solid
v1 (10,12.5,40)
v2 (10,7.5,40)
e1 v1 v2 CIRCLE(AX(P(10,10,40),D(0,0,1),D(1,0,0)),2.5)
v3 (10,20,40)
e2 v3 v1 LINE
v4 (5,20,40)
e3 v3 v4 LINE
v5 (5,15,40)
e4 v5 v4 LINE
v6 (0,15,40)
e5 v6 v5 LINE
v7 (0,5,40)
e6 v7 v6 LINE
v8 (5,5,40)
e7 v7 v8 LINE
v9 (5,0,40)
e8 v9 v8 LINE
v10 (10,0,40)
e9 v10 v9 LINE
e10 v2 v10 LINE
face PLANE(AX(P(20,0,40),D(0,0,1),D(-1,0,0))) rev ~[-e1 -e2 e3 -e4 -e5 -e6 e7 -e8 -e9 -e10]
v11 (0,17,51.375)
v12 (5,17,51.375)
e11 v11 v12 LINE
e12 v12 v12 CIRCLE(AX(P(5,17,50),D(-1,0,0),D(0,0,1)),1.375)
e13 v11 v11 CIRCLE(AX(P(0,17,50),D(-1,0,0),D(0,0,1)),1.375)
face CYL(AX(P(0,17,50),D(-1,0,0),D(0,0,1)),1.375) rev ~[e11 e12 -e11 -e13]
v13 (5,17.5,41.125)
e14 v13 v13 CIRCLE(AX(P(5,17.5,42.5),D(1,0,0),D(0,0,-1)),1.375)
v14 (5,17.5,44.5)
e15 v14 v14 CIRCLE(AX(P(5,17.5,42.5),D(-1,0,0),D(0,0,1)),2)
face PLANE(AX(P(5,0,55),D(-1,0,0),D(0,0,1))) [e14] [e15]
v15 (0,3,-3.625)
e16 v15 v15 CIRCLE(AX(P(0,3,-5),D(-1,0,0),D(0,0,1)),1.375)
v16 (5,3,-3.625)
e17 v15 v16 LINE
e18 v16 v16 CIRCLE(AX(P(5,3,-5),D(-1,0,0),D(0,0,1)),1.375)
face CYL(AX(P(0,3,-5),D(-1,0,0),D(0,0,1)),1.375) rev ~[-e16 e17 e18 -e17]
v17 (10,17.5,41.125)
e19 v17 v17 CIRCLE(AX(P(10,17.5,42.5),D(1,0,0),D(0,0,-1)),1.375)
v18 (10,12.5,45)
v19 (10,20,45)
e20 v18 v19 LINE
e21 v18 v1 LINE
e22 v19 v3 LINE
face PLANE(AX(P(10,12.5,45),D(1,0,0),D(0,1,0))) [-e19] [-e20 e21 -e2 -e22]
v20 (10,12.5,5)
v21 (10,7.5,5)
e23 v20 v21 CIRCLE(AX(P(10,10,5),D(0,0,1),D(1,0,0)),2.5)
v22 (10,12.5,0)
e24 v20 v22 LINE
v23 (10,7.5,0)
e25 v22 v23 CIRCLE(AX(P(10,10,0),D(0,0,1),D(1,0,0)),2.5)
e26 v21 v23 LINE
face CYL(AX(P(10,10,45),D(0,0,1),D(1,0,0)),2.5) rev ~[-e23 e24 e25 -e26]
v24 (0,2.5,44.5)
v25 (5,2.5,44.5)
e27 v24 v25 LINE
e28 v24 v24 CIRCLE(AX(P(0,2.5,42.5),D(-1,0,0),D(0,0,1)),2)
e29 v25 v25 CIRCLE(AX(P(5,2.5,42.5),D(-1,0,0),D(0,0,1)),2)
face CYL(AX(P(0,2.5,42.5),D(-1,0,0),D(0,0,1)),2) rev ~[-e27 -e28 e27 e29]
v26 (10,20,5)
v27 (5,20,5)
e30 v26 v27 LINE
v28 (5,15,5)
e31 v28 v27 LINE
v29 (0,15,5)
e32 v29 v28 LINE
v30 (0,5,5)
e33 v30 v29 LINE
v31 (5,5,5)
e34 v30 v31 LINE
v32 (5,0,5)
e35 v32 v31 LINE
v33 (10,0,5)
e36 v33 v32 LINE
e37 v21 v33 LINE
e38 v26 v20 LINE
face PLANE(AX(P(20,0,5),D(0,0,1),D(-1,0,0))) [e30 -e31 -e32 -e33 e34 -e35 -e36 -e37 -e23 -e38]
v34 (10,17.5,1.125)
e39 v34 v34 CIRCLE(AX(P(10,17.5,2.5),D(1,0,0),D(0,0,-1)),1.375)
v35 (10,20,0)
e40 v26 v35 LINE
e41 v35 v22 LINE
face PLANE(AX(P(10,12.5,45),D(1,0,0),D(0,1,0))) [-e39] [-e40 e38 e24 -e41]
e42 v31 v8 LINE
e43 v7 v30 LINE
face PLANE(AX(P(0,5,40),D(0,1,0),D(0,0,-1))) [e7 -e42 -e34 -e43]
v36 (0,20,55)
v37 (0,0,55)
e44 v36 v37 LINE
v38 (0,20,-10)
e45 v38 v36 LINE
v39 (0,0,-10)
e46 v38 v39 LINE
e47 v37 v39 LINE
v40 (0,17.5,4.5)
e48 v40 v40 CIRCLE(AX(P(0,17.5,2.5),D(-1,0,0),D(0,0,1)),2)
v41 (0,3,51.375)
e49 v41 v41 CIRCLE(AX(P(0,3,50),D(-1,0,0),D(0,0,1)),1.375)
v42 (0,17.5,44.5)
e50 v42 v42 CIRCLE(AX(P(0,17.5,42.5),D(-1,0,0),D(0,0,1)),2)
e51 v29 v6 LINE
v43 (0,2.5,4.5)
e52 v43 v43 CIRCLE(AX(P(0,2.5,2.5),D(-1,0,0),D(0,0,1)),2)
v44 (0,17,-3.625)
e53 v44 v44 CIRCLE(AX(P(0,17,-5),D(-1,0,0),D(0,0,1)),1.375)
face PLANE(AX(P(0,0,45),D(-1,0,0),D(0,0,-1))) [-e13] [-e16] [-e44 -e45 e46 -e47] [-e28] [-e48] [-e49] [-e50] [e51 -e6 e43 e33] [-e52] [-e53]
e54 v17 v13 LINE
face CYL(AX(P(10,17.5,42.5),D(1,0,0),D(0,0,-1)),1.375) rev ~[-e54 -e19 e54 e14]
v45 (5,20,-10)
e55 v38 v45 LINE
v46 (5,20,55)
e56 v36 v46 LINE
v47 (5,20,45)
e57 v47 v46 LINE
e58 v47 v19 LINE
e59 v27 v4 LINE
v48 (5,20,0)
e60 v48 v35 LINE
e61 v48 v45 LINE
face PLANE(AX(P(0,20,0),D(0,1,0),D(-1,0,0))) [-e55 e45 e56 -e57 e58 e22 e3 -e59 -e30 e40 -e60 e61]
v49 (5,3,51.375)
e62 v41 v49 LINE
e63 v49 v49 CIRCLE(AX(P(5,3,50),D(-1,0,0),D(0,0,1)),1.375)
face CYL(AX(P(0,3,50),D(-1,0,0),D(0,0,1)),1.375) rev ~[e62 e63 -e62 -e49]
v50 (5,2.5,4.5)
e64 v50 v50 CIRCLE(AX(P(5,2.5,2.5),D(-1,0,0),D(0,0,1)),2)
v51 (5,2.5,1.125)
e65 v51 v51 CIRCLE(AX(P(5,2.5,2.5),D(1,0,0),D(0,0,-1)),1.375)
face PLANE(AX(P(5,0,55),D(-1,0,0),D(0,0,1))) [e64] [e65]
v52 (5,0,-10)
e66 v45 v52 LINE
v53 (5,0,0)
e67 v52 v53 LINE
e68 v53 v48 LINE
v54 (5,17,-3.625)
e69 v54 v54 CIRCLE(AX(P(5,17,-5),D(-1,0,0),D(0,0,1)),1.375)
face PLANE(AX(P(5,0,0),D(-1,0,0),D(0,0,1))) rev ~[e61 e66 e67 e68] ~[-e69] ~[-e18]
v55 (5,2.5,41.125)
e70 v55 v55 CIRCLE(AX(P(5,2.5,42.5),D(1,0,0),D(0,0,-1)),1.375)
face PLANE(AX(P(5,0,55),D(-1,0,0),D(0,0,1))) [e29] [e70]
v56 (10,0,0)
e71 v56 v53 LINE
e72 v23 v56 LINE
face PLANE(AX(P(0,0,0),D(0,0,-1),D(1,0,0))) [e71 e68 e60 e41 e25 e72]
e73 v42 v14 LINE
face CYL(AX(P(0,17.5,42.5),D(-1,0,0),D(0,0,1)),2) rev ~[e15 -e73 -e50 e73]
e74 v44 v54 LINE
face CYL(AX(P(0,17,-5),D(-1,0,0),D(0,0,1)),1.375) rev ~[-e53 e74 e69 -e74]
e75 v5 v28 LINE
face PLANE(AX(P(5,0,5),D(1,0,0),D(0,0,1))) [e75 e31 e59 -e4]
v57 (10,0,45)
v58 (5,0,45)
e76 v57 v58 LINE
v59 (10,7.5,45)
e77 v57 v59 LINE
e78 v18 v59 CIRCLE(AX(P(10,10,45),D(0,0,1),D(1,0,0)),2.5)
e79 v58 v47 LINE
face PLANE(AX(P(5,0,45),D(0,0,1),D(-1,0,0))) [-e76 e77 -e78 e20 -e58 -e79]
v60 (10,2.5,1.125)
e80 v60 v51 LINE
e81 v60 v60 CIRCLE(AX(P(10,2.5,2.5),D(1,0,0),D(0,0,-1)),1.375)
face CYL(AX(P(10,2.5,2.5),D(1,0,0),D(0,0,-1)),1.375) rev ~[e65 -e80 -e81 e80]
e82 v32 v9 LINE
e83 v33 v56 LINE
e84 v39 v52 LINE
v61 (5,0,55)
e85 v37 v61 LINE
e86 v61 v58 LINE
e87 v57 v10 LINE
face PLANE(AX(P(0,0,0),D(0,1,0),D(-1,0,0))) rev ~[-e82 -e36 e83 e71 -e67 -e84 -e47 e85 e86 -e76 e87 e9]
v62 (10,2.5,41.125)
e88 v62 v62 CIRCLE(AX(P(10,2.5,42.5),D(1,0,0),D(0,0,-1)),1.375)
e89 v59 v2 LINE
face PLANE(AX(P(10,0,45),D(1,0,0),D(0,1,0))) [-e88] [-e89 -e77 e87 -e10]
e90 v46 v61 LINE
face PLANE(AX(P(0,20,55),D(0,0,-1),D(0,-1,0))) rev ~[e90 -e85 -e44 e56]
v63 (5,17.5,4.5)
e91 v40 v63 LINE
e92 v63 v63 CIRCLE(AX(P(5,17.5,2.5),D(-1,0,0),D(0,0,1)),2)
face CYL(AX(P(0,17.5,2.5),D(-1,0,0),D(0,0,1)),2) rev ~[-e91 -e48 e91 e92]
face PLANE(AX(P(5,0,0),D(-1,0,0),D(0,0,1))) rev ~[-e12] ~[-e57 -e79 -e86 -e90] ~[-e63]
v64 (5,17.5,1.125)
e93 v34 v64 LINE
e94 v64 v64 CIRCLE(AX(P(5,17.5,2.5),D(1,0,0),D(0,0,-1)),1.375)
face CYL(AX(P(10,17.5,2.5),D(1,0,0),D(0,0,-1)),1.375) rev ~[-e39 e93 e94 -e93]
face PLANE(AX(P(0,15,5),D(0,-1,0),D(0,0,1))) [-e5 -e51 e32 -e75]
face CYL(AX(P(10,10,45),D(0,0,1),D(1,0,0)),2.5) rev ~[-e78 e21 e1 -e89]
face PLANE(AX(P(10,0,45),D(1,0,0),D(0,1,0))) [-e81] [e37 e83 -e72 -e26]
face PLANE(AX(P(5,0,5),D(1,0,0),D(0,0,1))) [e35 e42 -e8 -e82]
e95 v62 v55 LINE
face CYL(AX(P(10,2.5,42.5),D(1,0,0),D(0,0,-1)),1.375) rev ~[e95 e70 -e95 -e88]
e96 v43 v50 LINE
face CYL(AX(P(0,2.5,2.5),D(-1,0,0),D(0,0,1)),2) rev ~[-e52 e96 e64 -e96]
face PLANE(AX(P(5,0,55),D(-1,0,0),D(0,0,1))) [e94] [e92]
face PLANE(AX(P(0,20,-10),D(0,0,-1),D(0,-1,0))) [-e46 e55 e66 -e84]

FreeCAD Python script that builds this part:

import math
import FreeCAD as App
import Part
import Sketcher
from FreeCAD import Vector
Q = App.Units.Quantity

doc = App.newDocument("Part")
body = doc.addObject("PartDesign::Body", "Body")

# Sketch on XZ plane
sketch1 = doc.addObject("Sketcher::SketchObject", "Sketch")
body.addObject(sketch1)
sketch1.AttachmentSupport = (doc.XZ_Plane, [""])
sketch1.MapMode = "FlatFace"
sketch1.addGeometry([
    Part.LineSegment(Vector(0, 0, 0), Vector(0, 45, 0)),  # 0
    Part.LineSegment(Vector(0, 45, 0), Vector(20, 45, 0)),  # 1
    Part.LineSegment(Vector(20, 45, 0), Vector(20, 40, 0)),  # 2
    Part.LineSegment(Vector(20, 40, 0), Vector(5, 40, 0)),  # 3
    Part.LineSegment(Vector(5, 40, 0), Vector(5, 5, 0)),  # 4
    Part.LineSegment(Vector(5, 5, 0), Vector(20, 5, 0)),  # 5
    Part.LineSegment(Vector(20, 5, 0), Vector(20, 0, 0)),  # 6
    Part.LineSegment(Vector(20, 0, 0), Vector(0, 0, 0)),  # 7
], False)
sketch1.addConstraint([
    Sketcher.Constraint("Coincident", 0, 2, 1, 1),
    Sketcher.Constraint("Coincident", 1, 2, 2, 1),
    Sketcher.Constraint("Coincident", 2, 2, 3, 1),
    Sketcher.Constraint("Coincident", 3, 2, 4, 1),
    Sketcher.Constraint("Coincident", 4, 2, 5, 1),
    Sketcher.Constraint("Coincident", 5, 2, 6, 1),
    Sketcher.Constraint("Coincident", 6, 2, 7, 1),
    Sketcher.Constraint("Coincident", 7, 2, 0, 1),
    Sketcher.Constraint("Vertical", 0),
    Sketcher.Constraint("Horizontal", 1),
    Sketcher.Constraint("Vertical", 2),
    Sketcher.Constraint("Horizontal", 3),
    Sketcher.Constraint("Vertical", 4),
    Sketcher.Constraint("Horizontal", 5),
    Sketcher.Constraint("Vertical", 6),
    Sketcher.Constraint("Horizontal", 7),
    Sketcher.Constraint("Coincident", 7, 2, -1, 1),
    Sketcher.Constraint("Vertical", 2, 2, 5, 2),
    Sketcher.Constraint("Equal", 2, 6),
    Sketcher.Constraint("DistanceX", 3, 2, 3, 1, Q("15 mm")),
    Sketcher.Constraint("DistanceY", 2, 2, 2, 1, Q("5 mm")),
    Sketcher.Constraint("DistanceY", 4, 2, 4, 1, Q("35 mm")),
    Sketcher.Constraint("DistanceX", -1, 1, 3, 2, Q("5 mm")),
])
pad1 = doc.addObject("PartDesign::Pad", "Pad")
body.addObject(pad1)
pad1.Profile = sketch1
pad1.Length = 20
pad1.Reversed = True

# Sketch on XY plane
sketch2 = doc.addObject("Sketcher::SketchObject", "Sketch001")
body.addObject(sketch2)
sketch2.AttachmentSupport = (doc.XY_Plane, [""])
sketch2.MapMode = "FlatFace"
sketch2.AttachmentOffset = App.Placement(Vector(0, 0, 45), App.Rotation())
sketch2.addGeometry([
    Part.LineSegment(Vector(10, 7.5, 0), Vector(10, 0, 0)),  # 0
    Part.LineSegment(Vector(10, 0, 0), Vector(20, 0, 0)),  # 1
    Part.LineSegment(Vector(20, 0, 0), Vector(20, 20, 0)),  # 2
    Part.LineSegment(Vector(20, 20, 0), Vector(10, 20, 0)),  # 3
    Part.LineSegment(Vector(10, 20, 0), Vector(10, 12.5, 0)),  # 4
    Part.ArcOfCircle(Part.Circle(Vector(10, 10, 0), Vector(0, 0, 1), 2.5), math.radians(90), math.radians(270)),  # 5
], False)
sketch2.addConstraint([
    Sketcher.Constraint("Coincident", 0, 2, 1, 1),
    Sketcher.Constraint("Coincident", 1, 2, 2, 1),
    Sketcher.Constraint("Coincident", 2, 2, 3, 1),
    Sketcher.Constraint("Coincident", 3, 2, 4, 1),
    Sketcher.Constraint("Coincident", 4, 2, 5, 1),
    Sketcher.Constraint("Coincident", 5, 2, 0, 1),
    Sketcher.Constraint("Vertical", 0),
    Sketcher.Constraint("Horizontal", 1),
    Sketcher.Constraint("Vertical", 2),
    Sketcher.Constraint("Horizontal", 3),
    Sketcher.Constraint("Vertical", 4),
    Sketcher.Constraint("PointOnObject", 0, 2, -1),
    Sketcher.Constraint("Vertical", 5, 3, 0, 2),
    Sketcher.Constraint("Vertical", 0, 2, 3, 2),
    Sketcher.Constraint("Equal", 0, 4),
    Sketcher.Constraint("Radius", 5, Q("2.5 mm")),
    Sketcher.Constraint("DistanceX", 1, 1, 1, 2, Q("10 mm")),
    Sketcher.Constraint("DistanceX", -1, 1, 5, 3, Q("10 mm")),
    Sketcher.Constraint("DistanceY", -1, 1, 5, 3, Q("10 mm")),
])
pocket1 = doc.addObject("PartDesign::Pocket", "Pocket")
body.addObject(pocket1)
pocket1.Profile = sketch2
pocket1.Length = 200

# Sketch on YZ plane
sketch3 = doc.addObject("Sketcher::SketchObject", "Sketch002")
body.addObject(sketch3)
sketch3.AttachmentSupport = (doc.YZ_Plane, [""])
sketch3.MapMode = "FlatFace"
sketch3.addGeometry([
    Part.LineSegment(Vector(15, 5, 0), Vector(5, 5, 0)),
    Part.LineSegment(Vector(5, 5, 0), Vector(5, 40, 0)),
    Part.LineSegment(Vector(5, 40, 0), Vector(15, 40, 0)),
    Part.LineSegment(Vector(15, 40, 0), Vector(15, 5, 0)),
], False)
sketch3.addConstraint([
    Sketcher.Constraint("Coincident", 0, 2, 1, 1),
    Sketcher.Constraint("Coincident", 1, 2, 2, 1),
    Sketcher.Constraint("Coincident", 2, 2, 3, 1),
    Sketcher.Constraint("Coincident", 3, 2, 0, 1),
    Sketcher.Constraint("Horizontal", 0),
    Sketcher.Constraint("Vertical", 1),
    Sketcher.Constraint("Horizontal", 2),
    Sketcher.Constraint("Vertical", 3),
    Sketcher.Constraint("DistanceX", -1, 1, 0, 2, Q("5 mm")),
    Sketcher.Constraint("DistanceY", -1, 1, 0, 2, Q("5 mm")),
    Sketcher.Constraint("DistanceX", 0, 2, 0, 1, Q("10 mm")),
    Sketcher.Constraint("DistanceY", 1, 1, 1, 2, Q("35 mm")),
])
pocket2 = doc.addObject("PartDesign::Pocket", "Pocket001")
body.addObject(pocket2)
pocket2.Profile = sketch3
pocket2.Length = 20
pocket2.Reversed = True

# Sketch on YZ plane
sketch4 = doc.addObject("Sketcher::SketchObject", "Sketch003")
body.addObject(sketch4)
sketch4.AttachmentSupport = (doc.YZ_Plane, [""])
sketch4.MapMode = "FlatFace"
sketch4.addGeometry([
    Part.LineSegment(Vector(20, 45, 0), Vector(0, 45, 0)),  # 0
    Part.LineSegment(Vector(0, 45, 0), Vector(0, 55, 0)),  # 1
    Part.LineSegment(Vector(0, 55, 0), Vector(20, 55, 0)),  # 2
    Part.LineSegment(Vector(20, 55, 0), Vector(20, 45, 0)),  # 3
    Part.Circle(Vector(3, 50, 0), Vector(0, 0, 1), 1.375),  # 4
    Part.Circle(Vector(17, 50, 0), Vector(0, 0, 1), 1.375),  # 5
    Part.LineSegment(Vector(0, 0, 0), Vector(20, 0, 0)),  # 6
    Part.LineSegment(Vector(20, 0, 0), Vector(20, -10, 0)),  # 7
    Part.LineSegment(Vector(20, -10, 0), Vector(0, -10, 0)),  # 8
    Part.LineSegment(Vector(0, -10, 0), Vector(0, 0, 0)),  # 9
    Part.Circle(Vector(3, -5, 0), Vector(0, 0, 1), 1.375),  # 10
    Part.Circle(Vector(17, -5, 0), Vector(0, 0, 1), 1.375),  # 11
], False)
sketch4.addConstraint([
    Sketcher.Constraint("Coincident", 0, 2, 1, 1),
    Sketcher.Constraint("Coincident", 1, 2, 2, 1),
    Sketcher.Constraint("Coincident", 2, 2, 3, 1),
    Sketcher.Constraint("Coincident", 3, 2, 0, 1),
    Sketcher.Constraint("Coincident", 6, 2, 7, 1),
    Sketcher.Constraint("Coincident", 7, 2, 8, 1),
    Sketcher.Constraint("Coincident", 8, 2, 9, 1),
    Sketcher.Constraint("Coincident", 9, 2, 6, 1),
    Sketcher.Constraint("Horizontal", 0),
    Sketcher.Constraint("Vertical", 1),
    Sketcher.Constraint("Horizontal", 2),
    Sketcher.Constraint("Vertical", 3),
    Sketcher.Constraint("Horizontal", 6),
    Sketcher.Constraint("Vertical", 7),
    Sketcher.Constraint("Horizontal", 8),
    Sketcher.Constraint("Vertical", 9),
    Sketcher.Constraint("Coincident", 9, 2, -1, 1),
    Sketcher.Constraint("Equal", 4, 5),
    Sketcher.Constraint("Equal", 5, 10),
    Sketcher.Constraint("Equal", 10, 11),
    Sketcher.Constraint("PointOnObject", 0, 2, -2),
    Sketcher.Constraint("Horizontal", 4, 3, 5, 3),
    Sketcher.Constraint("Horizontal", 10, 3, 11, 3),
    Sketcher.Constraint("Vertical", 4, 3, 10, 3),
    Sketcher.Constraint("Vertical", 5, 3, 11, 3),
    Sketcher.Constraint("Vertical", 3, 2, 6, 2),
    Sketcher.Constraint("Equal", 3, 7),
    Sketcher.Constraint("Diameter", 4, Q("2.75 mm")),
    Sketcher.Constraint("DistanceY", 1, 1, 1, 2, Q("10 mm")),
    Sketcher.Constraint("DistanceX", -1, 1, 4, 3, Q("3 mm")),
    Sketcher.Constraint("DistanceY", 10, 3, -1, 1, Q("5 mm")),
    Sketcher.Constraint("DistanceY", 0, 2, 4, 3, Q("5 mm")),
    Sketcher.Constraint("DistanceX", 5, 3, 2, 2, Q("3 mm")),
    Sketcher.Constraint("DistanceX", 0, 2, 0, 1, Q("20 mm")),
    Sketcher.Constraint("DistanceY", -1, 1, 4, 3, Q("50 mm")),
])
pad2 = doc.addObject("PartDesign::Pad", "Pad001")
body.addObject(pad2)
pad2.Profile = sketch4
pad2.Length = 5

# Sketch on YZ plane
sketch5 = doc.addObject("Sketcher::SketchObject", "Sketch004")
body.addObject(sketch5)
sketch5.AttachmentSupport = (doc.YZ_Plane, [""])
sketch5.MapMode = "FlatFace"
sketch5.AttachmentOffset = App.Placement(Vector(0, 0, 10), App.Rotation())
sketch5.addGeometry([
    Part.Circle(Vector(17.5, 2.5, 0), Vector(0, 0, 1), 1.375),
    Part.Circle(Vector(2.5, 2.5, 0), Vector(0, 0, 1), 1.375),
    Part.Circle(Vector(17.5, 42.5, 0), Vector(0, 0, 1), 1.375),
    Part.Circle(Vector(2.5, 42.5, 0), Vector(0, 0, 1), 1.375),
], False)
sketch5.addConstraint([
    Sketcher.Constraint("Equal", 0, 1),
    Sketcher.Constraint("Equal", 1, 2),
    Sketcher.Constraint("Equal", 2, 3),
    Sketcher.Constraint("Horizontal", 0, 3, 1, 3),
    Sketcher.Constraint("Horizontal", 2, 3, 3, 3),
    Sketcher.Constraint("Vertical", 0, 3, 2, 3),
    Sketcher.Constraint("Vertical", 1, 3, 3, 3),
    Sketcher.Constraint("Diameter", 0, Q("2.75 mm")),
    Sketcher.Constraint("DistanceY", -1, 1, 0, 3, Q("2.5 mm")),
    Sketcher.Constraint("DistanceX", -1, 1, 1, 3, Q("2.5 mm")),
    Sketcher.Constraint("DistanceX", 1, 3, 0, 3, Q("15 mm")),
    Sketcher.Constraint("DistanceY", 0, 3, 2, 3, Q("40 mm")),
])
pocket3 = doc.addObject("PartDesign::Pocket", "Pocket002")
body.addObject(pocket3)
pocket3.Profile = sketch5
pocket3.Length = 15

# Sketch on YZ plane
sketch6 = doc.addObject("Sketcher::SketchObject", "Sketch005")
body.addObject(sketch6)
sketch6.AttachmentSupport = (doc.YZ_Plane, [""])
sketch6.MapMode = "FlatFace"
sketch6.addGeometry([
    Part.Circle(Vector(17.5, 42.5, 0), Vector(0, 0, 1), 2),
    Part.Circle(Vector(2.5, 42.5, 0), Vector(0, 0, 1), 2),
    Part.Circle(Vector(2.5, 2.5, 0), Vector(0, 0, 1), 2),
    Part.Circle(Vector(17.5, 2.5, 0), Vector(0, 0, 1), 2),
], False)
sketch6.addConstraint([
    Sketcher.Constraint("Equal", 0, 1),
    Sketcher.Constraint("Equal", 1, 2),
    Sketcher.Constraint("Equal", 2, 3),
    Sketcher.Constraint("Horizontal", 0, 3, 1, 3),
    Sketcher.Constraint("Horizontal", 2, 3, 3, 3),
    Sketcher.Constraint("Vertical", 1, 3, 2, 3),
    Sketcher.Constraint("Vertical", 0, 3, 3, 3),
    Sketcher.Constraint("Diameter", 0, Q("4 mm")),
    Sketcher.Constraint("DistanceX", 1, 3, 0, 3, Q("15 mm")),
    Sketcher.Constraint("DistanceY", 2, 3, 1, 3, Q("40 mm")),
    Sketcher.Constraint("DistanceX", -1, 1, 0, 3, Q("17.5 mm")),
    Sketcher.Constraint("DistanceY", -1, 1, 0, 3, Q("42.5 mm")),
])
pocket4 = doc.addObject("PartDesign::Pocket", "Pocket003")
body.addObject(pocket4)
pocket4.Profile = sketch6
pocket4.Length = 5
pocket4.Reversed = True

doc.recompute()
